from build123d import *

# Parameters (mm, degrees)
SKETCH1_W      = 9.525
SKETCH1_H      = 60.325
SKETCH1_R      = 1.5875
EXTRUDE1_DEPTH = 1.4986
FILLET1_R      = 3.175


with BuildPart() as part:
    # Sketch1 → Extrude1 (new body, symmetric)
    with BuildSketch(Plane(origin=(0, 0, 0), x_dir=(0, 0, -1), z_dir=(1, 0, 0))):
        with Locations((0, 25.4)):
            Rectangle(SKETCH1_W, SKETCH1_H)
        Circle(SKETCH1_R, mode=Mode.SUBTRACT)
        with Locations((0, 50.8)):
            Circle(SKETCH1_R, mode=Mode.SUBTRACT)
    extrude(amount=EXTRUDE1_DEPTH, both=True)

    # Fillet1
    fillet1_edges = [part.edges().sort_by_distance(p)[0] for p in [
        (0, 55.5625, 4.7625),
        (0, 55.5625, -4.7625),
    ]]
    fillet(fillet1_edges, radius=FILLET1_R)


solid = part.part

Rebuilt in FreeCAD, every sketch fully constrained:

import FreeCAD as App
import Part
import Sketcher
from FreeCAD import Vector
Q = App.Units.Quantity


def edges_at(feature, points):
    """Names of the edges that pass closest to the given points."""
    edges = feature.Shape.Edges
    near = lambda p: min(range(len(edges)), key=lambda i: edges[i].distToShape(Part.Vertex(*p))[0])
    return sorted({f"Edge{near(p) + 1}" for p in points})

doc = App.newDocument("Part")
body = doc.addObject("PartDesign::Body", "Body")

sketch1 = doc.addObject("Sketcher::SketchObject", "Sketch")
body.addObject(sketch1)
sketch1.AttachmentSupport = (doc.YZ_Plane, [""])
sketch1.MapMode = "FlatFace"
sketch1.addGeometry(Part.LineSegment(Vector(55.6, 4.8, 0), Vector(-4.8, 4.8, 0)), False)
sketch1.addGeometry(Part.LineSegment(Vector(-4.8, 4.8, 0), Vector(-4.8, -4.8, 0)), False)
sketch1.addGeometry(Part.LineSegment(Vector(-4.8, -4.8, 0), Vector(55.6, -4.8, 0)), False)
sketch1.addGeometry(Part.LineSegment(Vector(55.6, -4.8, 0), Vector(55.6, 4.8, 0)), False)
sketch1.addGeometry(Part.Circle(Vector(0, 0, 0), Vector(0, 0, 1), 1.6), False)
sketch1.addGeometry(Part.Circle(Vector(50.8, 0, 0), Vector(0, 0, 1), 1.6), False)
sketch1.addConstraint(Sketcher.Constraint("Coincident", 0, 2, 1, 1))
sketch1.addConstraint(Sketcher.Constraint("Coincident", 1, 2, 2, 1))
sketch1.addConstraint(Sketcher.Constraint("Coincident", 2, 2, 3, 1))
sketch1.addConstraint(Sketcher.Constraint("Coincident", 3, 2, 0, 1))
sketch1.addConstraint(Sketcher.Constraint("Horizontal", 0))
sketch1.addConstraint(Sketcher.Constraint("Vertical", 1))
sketch1.addConstraint(Sketcher.Constraint("Horizontal", 2))
sketch1.addConstraint(Sketcher.Constraint("Vertical", 3))
sketch1.addConstraint(Sketcher.Constraint("Coincident", 4, 3, -1, 1))
sketch1.addConstraint(Sketcher.Constraint("Equal", 4, 5))
sketch1.addConstraint(Sketcher.Constraint("PointOnObject", 5, 3, -1))
sketch1.addConstraint(Sketcher.Constraint("Diameter", 4, Q("0.125 in")))
sketch1.addConstraint(Sketcher.Constraint("DistanceX", -1, 1, 5, 3, Q("2 in")))
sketch1.addConstraint(Sketcher.Constraint("DistanceX", 0, 2, 0, 1, Q("2.375 in")))
sketch1.addConstraint(Sketcher.Constraint("DistanceY", 1, 2, 1, 1, Q("0.375 in")))
sketch1.addConstraint(Sketcher.Constraint("DistanceX", 0, 2, -1, 1, Q("0.1875 in")))
sketch1.addConstraint(Sketcher.Constraint("DistanceY", -1, 1, 0, 2, Q("0.1875 in")))
pad1 = doc.addObject("PartDesign::Pad", "Pad")
body.addObject(pad1)
pad1.Profile = sketch1
pad1.Length = Q("0.118 in")
pad1.Midplane = True
doc.recompute()

fillet = doc.addObject("PartDesign::Fillet", "Fillet")
body.addObject(fillet)
fillet.Base = (pad1, edges_at(pad1, [(0, 55.562, 4.763), (0, 55.562, -4.763)]))
fillet.Radius = Q("0.125 in")

doc.recompute()
